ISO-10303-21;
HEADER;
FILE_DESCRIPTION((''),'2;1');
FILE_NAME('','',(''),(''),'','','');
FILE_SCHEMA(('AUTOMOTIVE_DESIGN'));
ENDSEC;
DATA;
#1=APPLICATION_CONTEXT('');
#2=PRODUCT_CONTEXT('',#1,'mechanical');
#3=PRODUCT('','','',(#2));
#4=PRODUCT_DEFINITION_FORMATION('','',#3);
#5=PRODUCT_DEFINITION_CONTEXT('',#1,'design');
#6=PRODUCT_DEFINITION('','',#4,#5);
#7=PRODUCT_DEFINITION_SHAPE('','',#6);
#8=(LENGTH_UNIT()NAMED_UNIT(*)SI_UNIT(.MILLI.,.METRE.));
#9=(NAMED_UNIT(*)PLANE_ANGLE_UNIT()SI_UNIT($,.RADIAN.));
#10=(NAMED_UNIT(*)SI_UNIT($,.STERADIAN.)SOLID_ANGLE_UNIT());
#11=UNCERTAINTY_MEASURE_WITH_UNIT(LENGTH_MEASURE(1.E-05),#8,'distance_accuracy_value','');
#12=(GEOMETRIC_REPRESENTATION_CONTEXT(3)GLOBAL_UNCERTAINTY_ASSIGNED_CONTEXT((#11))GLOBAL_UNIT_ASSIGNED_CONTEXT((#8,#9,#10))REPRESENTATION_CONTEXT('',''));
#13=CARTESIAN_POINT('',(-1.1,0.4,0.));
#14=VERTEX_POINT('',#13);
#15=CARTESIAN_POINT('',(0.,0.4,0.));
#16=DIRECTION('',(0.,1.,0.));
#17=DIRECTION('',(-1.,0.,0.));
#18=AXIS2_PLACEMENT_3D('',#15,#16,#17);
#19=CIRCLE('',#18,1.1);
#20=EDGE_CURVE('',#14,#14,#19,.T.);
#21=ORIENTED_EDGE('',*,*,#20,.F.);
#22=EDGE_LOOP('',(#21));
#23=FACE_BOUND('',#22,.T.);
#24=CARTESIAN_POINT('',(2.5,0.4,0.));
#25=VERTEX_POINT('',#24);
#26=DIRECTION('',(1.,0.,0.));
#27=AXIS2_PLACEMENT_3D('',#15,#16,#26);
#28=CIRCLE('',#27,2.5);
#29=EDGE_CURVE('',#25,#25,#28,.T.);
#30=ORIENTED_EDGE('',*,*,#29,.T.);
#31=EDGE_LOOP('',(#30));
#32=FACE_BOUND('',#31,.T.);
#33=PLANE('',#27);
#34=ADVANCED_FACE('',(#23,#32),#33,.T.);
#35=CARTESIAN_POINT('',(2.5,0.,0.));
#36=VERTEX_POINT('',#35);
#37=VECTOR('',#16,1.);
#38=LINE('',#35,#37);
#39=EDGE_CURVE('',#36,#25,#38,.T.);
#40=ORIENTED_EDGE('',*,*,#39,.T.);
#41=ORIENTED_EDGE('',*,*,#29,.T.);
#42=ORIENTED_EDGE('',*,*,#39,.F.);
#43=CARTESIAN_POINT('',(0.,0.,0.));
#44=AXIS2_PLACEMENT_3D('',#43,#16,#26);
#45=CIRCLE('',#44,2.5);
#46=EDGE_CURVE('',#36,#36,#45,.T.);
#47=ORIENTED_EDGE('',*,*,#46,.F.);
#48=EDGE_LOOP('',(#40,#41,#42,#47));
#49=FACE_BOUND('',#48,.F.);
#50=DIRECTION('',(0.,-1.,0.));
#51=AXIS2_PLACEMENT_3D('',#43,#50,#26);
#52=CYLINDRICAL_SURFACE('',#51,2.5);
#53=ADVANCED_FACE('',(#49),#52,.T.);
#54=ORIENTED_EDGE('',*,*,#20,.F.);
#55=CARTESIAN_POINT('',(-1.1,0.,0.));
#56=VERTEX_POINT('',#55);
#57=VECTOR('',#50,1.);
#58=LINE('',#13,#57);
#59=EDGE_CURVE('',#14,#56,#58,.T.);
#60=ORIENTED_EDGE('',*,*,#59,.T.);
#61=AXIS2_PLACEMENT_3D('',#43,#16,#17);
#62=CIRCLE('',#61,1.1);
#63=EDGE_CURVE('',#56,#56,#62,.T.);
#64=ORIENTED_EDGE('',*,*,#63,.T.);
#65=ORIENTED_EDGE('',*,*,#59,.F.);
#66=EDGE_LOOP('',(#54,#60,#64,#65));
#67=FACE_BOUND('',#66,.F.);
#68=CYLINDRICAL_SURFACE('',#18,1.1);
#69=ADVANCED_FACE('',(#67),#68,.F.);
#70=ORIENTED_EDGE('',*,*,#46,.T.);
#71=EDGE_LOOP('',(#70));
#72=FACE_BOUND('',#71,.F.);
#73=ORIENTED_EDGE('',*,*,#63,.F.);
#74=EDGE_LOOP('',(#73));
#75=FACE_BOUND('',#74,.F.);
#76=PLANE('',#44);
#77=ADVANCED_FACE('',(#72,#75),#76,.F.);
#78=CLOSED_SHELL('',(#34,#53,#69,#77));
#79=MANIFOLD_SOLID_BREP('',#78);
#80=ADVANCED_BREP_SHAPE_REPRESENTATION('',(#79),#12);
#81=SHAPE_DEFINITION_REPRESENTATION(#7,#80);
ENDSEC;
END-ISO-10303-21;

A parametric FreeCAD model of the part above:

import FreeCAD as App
import Part
import Sketcher

V = App.Vector
Q = App.Units.Quantity

doc = App.newDocument("Part")
body = doc.addObject("PartDesign::Body", "Body")

sketch1 = body.newObject("Sketcher::SketchObject", "Sketch")
sketch1.AttachmentSupport = (doc.getObject("XZ_Plane"), [""])
sketch1.MapMode = "FlatFace"
sketch1.addGeometry(Part.Circle(V(0, 0, 0), V(0, 0, 1), 2.5), False)
sketch1.addConstraint([
    Sketcher.Constraint("Coincident", 0, 3, -1, 1),
    Sketcher.Constraint("Diameter", 0, Q("5 mm")),
])
pad1 = body.newObject("PartDesign::Pad", "Pad")
pad1.Profile = sketch1
pad1.Length = 0.4
pad1.Reversed = True

sketch2 = body.newObject("Sketcher::SketchObject", "Sketch001")
sketch2.AttachmentSupport = (doc.getObject("XZ_Plane"), [""])
sketch2.MapMode = "FlatFace"
sketch2.AttachmentOffset = App.Placement(V(0, 0, -0.4), App.Rotation())
sketch2.addGeometry(Part.Circle(V(0, 0, 0), V(0, 0, 1), 1.1), False)
sketch2.addConstraint([
    Sketcher.Constraint("Coincident", 0, 3, -1, 1),
    Sketcher.Constraint("Diameter", 0, Q("2.2 mm")),
])
pocket1 = body.newObject("PartDesign::Pocket", "Pocket")
pocket1.Profile = sketch2
pocket1.Type = "ThroughAll"
pocket1.Reversed = True

doc.recompute()
